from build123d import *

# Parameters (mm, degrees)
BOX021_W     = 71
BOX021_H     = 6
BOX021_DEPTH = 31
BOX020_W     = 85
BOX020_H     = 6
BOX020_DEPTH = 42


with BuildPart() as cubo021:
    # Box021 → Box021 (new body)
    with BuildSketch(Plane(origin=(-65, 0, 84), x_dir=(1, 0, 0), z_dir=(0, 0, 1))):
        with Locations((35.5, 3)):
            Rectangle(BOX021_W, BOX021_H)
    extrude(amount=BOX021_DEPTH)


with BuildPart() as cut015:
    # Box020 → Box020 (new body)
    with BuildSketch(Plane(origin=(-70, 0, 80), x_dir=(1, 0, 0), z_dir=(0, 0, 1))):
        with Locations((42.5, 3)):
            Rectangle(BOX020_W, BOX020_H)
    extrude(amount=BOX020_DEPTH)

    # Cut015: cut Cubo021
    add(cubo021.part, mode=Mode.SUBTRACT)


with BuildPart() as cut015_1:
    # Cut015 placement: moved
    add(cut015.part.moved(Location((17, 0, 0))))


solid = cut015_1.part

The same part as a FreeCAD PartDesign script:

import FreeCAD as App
import Part
import Sketcher
Q = App.Units.Quantity


def add_polygon(sketch, points):
    """Adds a closed chain of lines whose ends are joined by coincident constraints."""
    first, n = sketch.GeometryCount, len(points)
    for a, b in zip(points, points[1:] + points[:1]):
        sketch.addGeometry(Part.LineSegment(App.Vector(*a, 0), App.Vector(*b, 0)), False)
    for i in range(n):
        sketch.addConstraint(Sketcher.Constraint("Coincident", first + i, 2, first + (i + 1) % n, 1))

doc = App.newDocument("Part")
body = doc.addObject("PartDesign::Body", "Body")

# Sketch on XY plane
sketch1 = body.newObject("Sketcher::SketchObject", "Sketch")
sketch1.AttachmentSupport = (doc.getObject("XY_Plane"), [""])
sketch1.MapMode = "FlatFace"
sketch1.AttachmentOffset = App.Placement(App.Vector(0, 0, 84), App.Rotation())
add_polygon(sketch1, [(-65, 6), (-65, 0), (6, 0), (6, 6)])  # lines 0-3
sketch1.addConstraint(Sketcher.Constraint("Vertical", 0))
sketch1.addConstraint(Sketcher.Constraint("Horizontal", 1))
sketch1.addConstraint(Sketcher.Constraint("Vertical", 2))
sketch1.addConstraint(Sketcher.Constraint("Horizontal", 3))
sketch1.addConstraint(Sketcher.Constraint("PointOnObject", 0, 2, -1))
sketch1.addConstraint(Sketcher.Constraint("DistanceX", 1, 1, 1, 2, Q("71 mm")))
sketch1.addConstraint(Sketcher.Constraint("DistanceY", 0, 2, 0, 1, Q("6 mm")))
sketch1.addConstraint(Sketcher.Constraint("DistanceX", 0, 2, -1, 1, Q("65 mm")))
pad1 = body.newObject("PartDesign::Pad", "Pad")
pad1.Profile = sketch1
pad1.Length = 31
body2 = doc.addObject("PartDesign::Body", "Body001")

# Sketch on XY plane
sketch2 = body2.newObject("Sketcher::SketchObject", "Sketch001")
sketch2.AttachmentSupport = (doc.getObject("XY_Plane001"), [""])
sketch2.MapMode = "FlatFace"
sketch2.AttachmentOffset = App.Placement(App.Vector(0, 0, 80), App.Rotation())
add_polygon(sketch2, [(-70, 6), (-70, 0), (15, 0), (15, 6)])  # lines 0-3
sketch2.addConstraint(Sketcher.Constraint("Vertical", 0))
sketch2.addConstraint(Sketcher.Constraint("Horizontal", 1))
sketch2.addConstraint(Sketcher.Constraint("Vertical", 2))
sketch2.addConstraint(Sketcher.Constraint("Horizontal", 3))
sketch2.addConstraint(Sketcher.Constraint("PointOnObject", 0, 2, -1))
sketch2.addConstraint(Sketcher.Constraint("DistanceX", 1, 1, 1, 2, Q("85 mm")))
sketch2.addConstraint(Sketcher.Constraint("DistanceY", 0, 2, 0, 1, Q("6 mm")))
sketch2.addConstraint(Sketcher.Constraint("DistanceX", 0, 2, -1, 1, Q("70 mm")))
pad2 = body2.newObject("PartDesign::Pad", "Pad001")
pad2.Profile = sketch2
pad2.Length = 42
doc.recompute()

boolean = body2.newObject("PartDesign::Boolean", "Boolean")
boolean.Type = "Cut"
boolean.addObjects([body])
body3 = doc.addObject("PartDesign::Body", "Body002")
doc.recompute()

body2.Placement = App.Placement(App.Vector(17, 0, 0), App.Rotation(App.Vector(0, 0, 1), 0))
boolean2 = body3.newObject("PartDesign::Boolean", "Boolean001")
boolean2.Type = "Fuse"
boolean2.addObjects([body2])

doc.recompute()
